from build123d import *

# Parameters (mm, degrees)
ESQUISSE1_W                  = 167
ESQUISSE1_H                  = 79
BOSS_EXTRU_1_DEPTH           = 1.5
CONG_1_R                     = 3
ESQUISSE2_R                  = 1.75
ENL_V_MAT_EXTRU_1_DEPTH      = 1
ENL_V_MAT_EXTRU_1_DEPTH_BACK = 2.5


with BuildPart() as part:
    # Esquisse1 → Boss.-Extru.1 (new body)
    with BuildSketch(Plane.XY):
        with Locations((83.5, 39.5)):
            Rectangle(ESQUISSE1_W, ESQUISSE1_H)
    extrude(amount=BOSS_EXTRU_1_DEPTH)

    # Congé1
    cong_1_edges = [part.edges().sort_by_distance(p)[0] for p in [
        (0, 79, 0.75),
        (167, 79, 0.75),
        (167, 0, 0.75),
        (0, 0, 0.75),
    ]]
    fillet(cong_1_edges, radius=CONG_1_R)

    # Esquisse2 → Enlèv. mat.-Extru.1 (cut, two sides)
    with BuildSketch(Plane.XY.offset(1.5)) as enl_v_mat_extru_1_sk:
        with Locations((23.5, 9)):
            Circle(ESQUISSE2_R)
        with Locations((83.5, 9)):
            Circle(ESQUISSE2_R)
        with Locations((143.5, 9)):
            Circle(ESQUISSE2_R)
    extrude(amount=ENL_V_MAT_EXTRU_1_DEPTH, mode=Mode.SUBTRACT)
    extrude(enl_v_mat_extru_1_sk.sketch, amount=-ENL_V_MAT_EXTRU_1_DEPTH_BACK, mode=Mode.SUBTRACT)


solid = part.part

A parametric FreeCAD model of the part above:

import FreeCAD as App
import Part
import Sketcher
from FreeCAD import Vector


def edges_at(feature, points):
    """Names of the edges that pass closest to the given points."""
    edges = feature.Shape.Edges
    near = lambda p: min(range(len(edges)), key=lambda i: edges[i].distToShape(Part.Vertex(*p))[0])
    return sorted({f"Edge{near(p) + 1}" for p in points})

doc = App.newDocument("Part")
body = doc.addObject("PartDesign::Body", "Body")

sketch1 = doc.addObject("Sketcher::SketchObject", "Sketch")
body.addObject(sketch1)
sketch1.AttachmentSupport = (doc.XY_Plane, [""])
sketch1.MapMode = "FlatFace"
sketch1.addGeometry([
    Part.LineSegment(Vector(0, 79, 0), Vector(0, 0, 0)),
    Part.LineSegment(Vector(0, 0, 0), Vector(167, 0, 0)),
    Part.LineSegment(Vector(167, 0, 0), Vector(167, 79, 0)),
    Part.LineSegment(Vector(167, 79, 0), Vector(0, 79, 0)),
], False)
sketch1.addConstraint([
    Sketcher.Constraint("Coincident", 0, 2, 1, 1),
    Sketcher.Constraint("Coincident", 1, 2, 2, 1),
    Sketcher.Constraint("Coincident", 2, 2, 3, 1),
    Sketcher.Constraint("Coincident", 3, 2, 0, 1),
    Sketcher.Constraint("Vertical", 0),
    Sketcher.Constraint("Horizontal", 1),
    Sketcher.Constraint("Vertical", 2),
    Sketcher.Constraint("Horizontal", 3),
    Sketcher.Constraint("Coincident", 0, 2, -1, 1),
    Sketcher.Constraint("DistanceX", 1, 1, 1, 2, 167.0),
    Sketcher.Constraint("DistanceY", 0, 2, 0, 1, 79.0),
])
pad1 = doc.addObject("PartDesign::Pad", "Pad")
body.addObject(pad1)
pad1.Profile = sketch1
pad1.Length = 1.5
doc.recompute()

fillet = doc.addObject("PartDesign::Fillet", "Fillet")
body.addObject(fillet)
fillet.Base = (pad1, edges_at(pad1, [
    (0, 79, 0.75),
    (167, 79, 0.75),
    (167, 0, 0.75),
    (0, 0, 0.75),
]))
fillet.Radius = 3

sketch2 = doc.addObject("Sketcher::SketchObject", "Sketch001")
body.addObject(sketch2)
sketch2.AttachmentSupport = (doc.XY_Plane, [""])
sketch2.MapMode = "FlatFace"
sketch2.AttachmentOffset = App.Placement(Vector(0, 0, 1.5), App.Rotation())
sketch2.addGeometry([
    Part.Circle(Vector(23.5, 9, 0), Vector(0, 0, 1), 1.75),
    Part.Circle(Vector(83.5, 9, 0), Vector(0, 0, 1), 1.75),
    Part.Circle(Vector(143.5, 9, 0), Vector(0, 0, 1), 1.75),
], False)
sketch2.addConstraint([
    Sketcher.Constraint("Equal", 0, 1),
    Sketcher.Constraint("Equal", 1, 2),
    Sketcher.Constraint("Horizontal", 0, 3, 1, 3),
    Sketcher.Constraint("Horizontal", 1, 3, 2, 3),
    Sketcher.Constraint("Diameter", 0, 3.5),
    Sketcher.Constraint("DistanceY", -1, 1, 0, 3, 9.0),
    Sketcher.Constraint("DistanceX", 0, 3, 1, 3, 60.0),
    Sketcher.Constraint("DistanceX", 1, 3, 2, 3, 60.0),
    Sketcher.Constraint("DistanceX", -1, 1, 0, 3, 23.5),
])
pocket1 = doc.addObject("PartDesign::Pocket", "Pocket")
body.addObject(pocket1)
pocket1.Profile = sketch2
pocket1.Type = "ThroughAll"
pocket1.Midplane = True

doc.recompute()
